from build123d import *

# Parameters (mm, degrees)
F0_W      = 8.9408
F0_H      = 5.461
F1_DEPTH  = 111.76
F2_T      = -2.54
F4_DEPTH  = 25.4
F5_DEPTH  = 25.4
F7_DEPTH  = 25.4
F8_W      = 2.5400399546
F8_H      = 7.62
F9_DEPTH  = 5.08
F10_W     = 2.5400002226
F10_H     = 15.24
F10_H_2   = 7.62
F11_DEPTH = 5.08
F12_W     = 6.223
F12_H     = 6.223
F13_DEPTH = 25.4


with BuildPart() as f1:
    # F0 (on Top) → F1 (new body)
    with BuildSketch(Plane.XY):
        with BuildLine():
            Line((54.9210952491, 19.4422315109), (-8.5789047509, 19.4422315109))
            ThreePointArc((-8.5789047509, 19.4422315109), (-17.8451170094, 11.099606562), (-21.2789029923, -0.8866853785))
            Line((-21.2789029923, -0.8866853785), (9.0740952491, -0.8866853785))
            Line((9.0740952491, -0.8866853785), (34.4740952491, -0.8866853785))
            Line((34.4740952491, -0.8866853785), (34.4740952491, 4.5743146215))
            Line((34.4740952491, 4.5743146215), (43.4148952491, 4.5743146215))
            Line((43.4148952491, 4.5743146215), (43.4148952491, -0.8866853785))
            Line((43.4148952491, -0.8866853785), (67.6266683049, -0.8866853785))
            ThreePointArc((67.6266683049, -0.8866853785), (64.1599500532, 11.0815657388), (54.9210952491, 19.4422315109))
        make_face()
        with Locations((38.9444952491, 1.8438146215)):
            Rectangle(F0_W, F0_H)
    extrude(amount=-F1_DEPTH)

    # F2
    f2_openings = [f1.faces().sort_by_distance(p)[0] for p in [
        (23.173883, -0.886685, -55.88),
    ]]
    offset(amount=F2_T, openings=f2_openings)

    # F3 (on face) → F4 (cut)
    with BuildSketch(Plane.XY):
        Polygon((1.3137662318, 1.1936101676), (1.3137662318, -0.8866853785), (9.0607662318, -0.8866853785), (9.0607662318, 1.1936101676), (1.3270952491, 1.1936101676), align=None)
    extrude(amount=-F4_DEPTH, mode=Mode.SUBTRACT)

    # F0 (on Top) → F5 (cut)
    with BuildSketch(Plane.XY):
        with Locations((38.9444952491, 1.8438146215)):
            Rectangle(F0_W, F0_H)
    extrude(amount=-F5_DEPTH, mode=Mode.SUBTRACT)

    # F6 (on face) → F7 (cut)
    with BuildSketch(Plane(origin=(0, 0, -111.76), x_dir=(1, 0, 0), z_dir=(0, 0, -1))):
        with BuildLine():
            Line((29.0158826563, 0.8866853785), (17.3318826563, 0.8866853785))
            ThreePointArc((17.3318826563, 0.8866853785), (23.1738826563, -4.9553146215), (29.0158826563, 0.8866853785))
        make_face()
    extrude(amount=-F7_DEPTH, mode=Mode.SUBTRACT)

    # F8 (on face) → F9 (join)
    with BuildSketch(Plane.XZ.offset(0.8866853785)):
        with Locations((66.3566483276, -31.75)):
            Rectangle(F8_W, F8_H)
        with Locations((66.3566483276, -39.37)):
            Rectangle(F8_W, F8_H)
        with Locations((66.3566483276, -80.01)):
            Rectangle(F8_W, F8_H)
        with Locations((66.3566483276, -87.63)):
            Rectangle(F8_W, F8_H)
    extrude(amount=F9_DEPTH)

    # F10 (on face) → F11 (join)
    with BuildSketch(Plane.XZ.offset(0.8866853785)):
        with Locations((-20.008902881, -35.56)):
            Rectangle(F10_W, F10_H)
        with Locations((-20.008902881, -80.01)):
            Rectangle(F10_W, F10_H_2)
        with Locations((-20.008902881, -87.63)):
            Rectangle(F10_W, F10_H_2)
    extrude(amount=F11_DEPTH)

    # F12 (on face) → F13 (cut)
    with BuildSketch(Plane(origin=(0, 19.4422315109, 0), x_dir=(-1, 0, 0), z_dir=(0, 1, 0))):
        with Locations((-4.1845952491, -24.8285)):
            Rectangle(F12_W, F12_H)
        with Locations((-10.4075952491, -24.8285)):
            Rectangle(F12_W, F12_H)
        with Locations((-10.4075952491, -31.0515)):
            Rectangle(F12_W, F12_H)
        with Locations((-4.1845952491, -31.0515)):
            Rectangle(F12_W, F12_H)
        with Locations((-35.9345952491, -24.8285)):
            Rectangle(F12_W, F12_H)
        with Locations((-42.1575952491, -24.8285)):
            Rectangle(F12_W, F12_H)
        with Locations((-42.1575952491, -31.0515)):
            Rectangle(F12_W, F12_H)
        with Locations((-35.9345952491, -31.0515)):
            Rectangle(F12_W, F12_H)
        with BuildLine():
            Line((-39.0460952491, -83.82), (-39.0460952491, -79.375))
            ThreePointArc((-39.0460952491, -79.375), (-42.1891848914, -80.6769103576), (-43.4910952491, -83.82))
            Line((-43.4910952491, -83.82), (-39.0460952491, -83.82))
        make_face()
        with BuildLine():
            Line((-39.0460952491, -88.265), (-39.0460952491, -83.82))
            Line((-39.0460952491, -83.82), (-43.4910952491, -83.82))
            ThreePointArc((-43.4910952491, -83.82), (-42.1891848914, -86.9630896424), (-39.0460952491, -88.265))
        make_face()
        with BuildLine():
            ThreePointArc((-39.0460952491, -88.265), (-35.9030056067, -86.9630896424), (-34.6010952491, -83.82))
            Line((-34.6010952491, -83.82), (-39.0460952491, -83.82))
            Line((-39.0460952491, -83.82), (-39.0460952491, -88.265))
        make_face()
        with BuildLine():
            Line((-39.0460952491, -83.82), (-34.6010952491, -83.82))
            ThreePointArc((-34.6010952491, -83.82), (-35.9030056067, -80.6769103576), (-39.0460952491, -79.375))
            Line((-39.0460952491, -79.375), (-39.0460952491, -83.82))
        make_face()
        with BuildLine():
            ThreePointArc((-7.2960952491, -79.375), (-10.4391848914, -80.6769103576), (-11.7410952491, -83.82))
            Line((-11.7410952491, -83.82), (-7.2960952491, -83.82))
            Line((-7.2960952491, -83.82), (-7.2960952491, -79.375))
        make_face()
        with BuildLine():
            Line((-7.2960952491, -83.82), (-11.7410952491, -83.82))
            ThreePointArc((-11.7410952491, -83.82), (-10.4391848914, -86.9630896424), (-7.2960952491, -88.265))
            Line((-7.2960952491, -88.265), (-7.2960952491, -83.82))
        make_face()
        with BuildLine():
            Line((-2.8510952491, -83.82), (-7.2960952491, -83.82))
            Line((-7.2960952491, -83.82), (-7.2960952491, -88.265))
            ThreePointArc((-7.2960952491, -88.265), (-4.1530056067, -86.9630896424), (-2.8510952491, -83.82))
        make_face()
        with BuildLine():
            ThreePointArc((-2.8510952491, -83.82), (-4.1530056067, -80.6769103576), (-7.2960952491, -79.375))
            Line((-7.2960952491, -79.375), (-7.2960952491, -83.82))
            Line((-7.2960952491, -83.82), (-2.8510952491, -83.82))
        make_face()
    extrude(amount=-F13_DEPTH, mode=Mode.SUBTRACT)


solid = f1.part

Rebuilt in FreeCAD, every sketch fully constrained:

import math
import FreeCAD as App
import Part
import Sketcher
Q = App.Units.Quantity


def faces_at(feature, points):
    """Names of the faces that lie closest to the given points."""
    faces = feature.Shape.Faces
    near = lambda p: min(range(len(faces)), key=lambda i: faces[i].distToShape(Part.Vertex(*p))[0])
    return sorted({f"Face{near(p) + 1}" for p in points})


def add_polygon(sketch, points):
    """Adds a closed chain of lines whose ends are joined by coincident constraints."""
    first, n = sketch.GeometryCount, len(points)
    for a, b in zip(points, points[1:] + points[:1]):
        sketch.addGeometry(Part.LineSegment(App.Vector(*a, 0), App.Vector(*b, 0)), False)
    for i in range(n):
        sketch.addConstraint(Sketcher.Constraint("Coincident", first + i, 2, first + (i + 1) % n, 1))

doc = App.newDocument("Part")
params = doc.addObject("Spreadsheet::Sheet", "Params")
for row, (alias, value) in enumerate([
    ("sketch1_radius", "0.89 in"),
    ("sketch1_width", "2.5 in"),
    ("sketch1_radius2", "0.898 in"),
    ("pad1_length", "4.4 in"),
    ("thickness_wall", "0.1 in"),
    ("sketch2_width", "0.305 in"),
    ("pocket1_length", "1 in"),
    ("sketch3_width", "0.352 in"),
    ("sketch3_height", "0.215 in"),
    ("pocket2_length", "1 in"),
    ("sketch4_radius", "0.23 in"),
    ("pocket3_length", "1 in"),
    ("sketch5_height", "0.6 in"),
    ("pad2_length", "0.2 in"),
    ("sketch6_width", "0.1 in"),
    ("sketch6_height", "0.6 in"),
    ("pad3_length", "0.2 in"),
    ("sketch7_radius", "0.175 in"),
    ("sketch7_width", "0.49 in"),
    ("pocket4_length", "1 in"),
], start=1):
    params.set(f"A{row}", alias)
    params.set(f"B{row}", "=" + value)
    params.setAlias(f"B{row}", alias)

body = doc.addObject("PartDesign::Body", "Body")

# Sketch on XY plane
sketch1 = doc.addObject("Sketcher::SketchObject", "Sketch")
body.addObject(sketch1)
sketch1.AttachmentSupport = (doc.XY_Plane, [""])
sketch1.MapMode = "FlatFace"
sketch1.addGeometry([
    Part.LineSegment(App.Vector(55, 19, 0), App.Vector(-9, 19, 0)),
    Part.ArcOfCircle(Part.Circle(App.Vector(1, -1, 0), App.Vector(0, 0, 1), 23), math.radians(116), math.radians(180)),
    Part.LineSegment(App.Vector(-21, -1, 0), App.Vector(68, -1, 0)),
    Part.ArcOfCircle(Part.Circle(App.Vector(45, -1, 0), App.Vector(0, 0, 1), 23), math.radians(0), math.radians(64)),
], False)
sketch1.addConstraint([
    Sketcher.Constraint("Coincident", 0, 2, 1, 1),
    Sketcher.Constraint("Coincident", 1, 2, 2, 1),
    Sketcher.Constraint("Coincident", 2, 2, 3, 1),
    Sketcher.Constraint("Coincident", 3, 2, 0, 1),
    Sketcher.Constraint("Horizontal", 0),
    Sketcher.Constraint("Horizontal", 2),
    Sketcher.Constraint("Radius", 1, Q("0.89 in")),
    Sketcher.Constraint("DistanceX", 0, 2, 0, 1, Q("2.5 in")),
    Sketcher.Constraint("Radius", 3, Q("0.898 in")),
    Sketcher.Constraint("DistanceX", 1, 2, 3, 2, Q("2.9999999 in")),
    Sketcher.Constraint("DistanceX", 2, 1, 2, 2, 88.905571),
    Sketcher.Constraint("DistanceY", 3, 3, 1, 2, 0.120601),
    Sketcher.Constraint("DistanceY", 1, 3, -1, 1, 0.877768),
    Sketcher.Constraint("DistanceX", -1, 1, 2, 2, 67.626668),
])
sketch1.setExpression("Constraints[6]", "Params.sketch1_radius")
sketch1.setExpression("Constraints[7]", "Params.sketch1_width")
sketch1.setExpression("Constraints[8]", "Params.sketch1_radius2")
pad1 = doc.addObject("PartDesign::Pad", "Pad")
body.addObject(pad1)
pad1.Profile = sketch1
pad1.setExpression("Length", "Params.pad1_length")
pad1.Reversed = True
doc.recompute()

thickness = doc.addObject("PartDesign::Thickness", "Thickness")
body.addObject(thickness)
thickness.Base = (pad1, faces_at(pad1, [(23.174, -0.887, -55.88)]))
thickness.setExpression("Value", "Params.thickness_wall")
thickness.Reversed = True
thickness.Join = "Arc"

# Sketch on XY plane
sketch2 = doc.addObject("Sketcher::SketchObject", "Sketch001")
body.addObject(sketch2)
sketch2.AttachmentSupport = (doc.XY_Plane, [""])
sketch2.MapMode = "FlatFace"
add_polygon(sketch2, [(1.3, 1.2), (1.3, -0.9), (9.1, -0.9), (9.1, 1.2)])  # lines 0-3
sketch2.addConstraint([
    Sketcher.Constraint("Vertical", 0),
    Sketcher.Constraint("Horizontal", 1),
    Sketcher.Constraint("Vertical", 2),
    Sketcher.Constraint("Horizontal", 3),
    Sketcher.Constraint("DistanceX", 1, 1, 1, 2, Q("0.305 in")),
    Sketcher.Constraint("DistanceY", 0, 2, 0, 1, 2.080296),
    Sketcher.Constraint("DistanceY", -1, 1, 2, 2, 1.19361),
    Sketcher.Constraint("DistanceX", -1, 1, 0, 2, 1.313766),
])
sketch2.setExpression("Constraints[8]", "Params.sketch2_width")
pocket1 = doc.addObject("PartDesign::Pocket", "Pocket")
body.addObject(pocket1)
pocket1.Profile = sketch2
pocket1.setExpression("Length", "Params.pocket1_length")

# Sketch on XY plane
sketch3 = doc.addObject("Sketcher::SketchObject", "Sketch002")
body.addObject(sketch3)
sketch3.AttachmentSupport = (doc.XY_Plane, [""])
sketch3.MapMode = "FlatFace"
add_polygon(sketch3, [(34, 5), (34, -1), (43, -1), (43, 5)])  # lines 0-3
sketch3.addConstraint([
    Sketcher.Constraint("Vertical", 0),
    Sketcher.Constraint("Horizontal", 1),
    Sketcher.Constraint("Vertical", 2),
    Sketcher.Constraint("Horizontal", 3),
    Sketcher.Constraint("DistanceX", 1, 1, 1, 2, Q("0.352 in")),
    Sketcher.Constraint("DistanceY", 0, 2, 0, 1, Q("0.215 in")),
    Sketcher.Constraint("DistanceX", -1, 1, 0, 2, 34.474095),
    Sketcher.Constraint("DistanceY", 0, 2, -1, 1, 0.886685),
])
sketch3.setExpression("Constraints[8]", "Params.sketch3_width")
sketch3.setExpression("Constraints[9]", "Params.sketch3_height")
pocket2 = doc.addObject("PartDesign::Pocket", "Pocket001")
body.addObject(pocket2)
pocket2.Profile = sketch3
pocket2.setExpression("Length", "Params.pocket2_length")

# Sketch on XY plane
sketch4 = doc.addObject("Sketcher::SketchObject", "Sketch003")
body.addObject(sketch4)
sketch4.AttachmentSupport = (doc.XY_Plane, [""])
sketch4.MapMode = "FlatFace"
sketch4.AttachmentOffset = App.Placement(App.Vector(0, 0, -4.4 * 25.4), App.Rotation())
sketch4.addGeometry([
    Part.LineSegment(App.Vector(29, -1, 0), App.Vector(17, -1, 0)),
    Part.ArcOfCircle(Part.Circle(App.Vector(23, -1, 0), App.Vector(0, 0, 1), 6), math.radians(0), math.radians(180)),
], False)
sketch4.addConstraint([
    Sketcher.Constraint("Coincident", 0, 1, 1, 1),
    Sketcher.Constraint("Coincident", 1, 2, 0, 2),
    Sketcher.Constraint("Horizontal", 0),
    Sketcher.Constraint("Horizontal", 1, 3, 0, 1),
    Sketcher.Constraint("Radius", 1, Q("0.23 in")),
    Sketcher.Constraint("DistanceX", -1, 1, 1, 3, 23.173883),
    Sketcher.Constraint("DistanceY", 1, 3, -1, 1, 0.886685),
])
sketch4.setExpression("Constraints[4]", "Params.sketch4_radius")
pocket3 = doc.addObject("PartDesign::Pocket", "Pocket002")
body.addObject(pocket3)
pocket3.Profile = sketch4
pocket3.setExpression("Length", "Params.pocket3_length")
pocket3.Reversed = True

# Sketch on XZ plane
sketch5 = doc.addObject("Sketcher::SketchObject", "Sketch004")
body.addObject(sketch5)
sketch5.AttachmentSupport = (doc.XZ_Plane, [""])
sketch5.MapMode = "FlatFace"
sketch5.AttachmentOffset = App.Placement(App.Vector(0, 0, 0.886685), App.Rotation())
add_polygon(sketch5, [(65.1, -27.9), (65.1, -43.2), (67.6, -43.2), (67.6, -27.9)])  # lines 0-3
add_polygon(sketch5, [(65.1, -76.2), (65.1, -91.4), (67.6, -91.4), (67.6, -76.2)])  # lines 4-7
sketch5.addConstraint([
    Sketcher.Constraint("Vertical", 0),
    Sketcher.Constraint("Horizontal", 1),
    Sketcher.Constraint("Vertical", 2),
    Sketcher.Constraint("Horizontal", 3),
    Sketcher.Constraint("Vertical", 4),
    Sketcher.Constraint("Horizontal", 5),
    Sketcher.Constraint("Vertical", 6),
    Sketcher.Constraint("Horizontal", 7),
    Sketcher.Constraint("Vertical", 3, 2, 4, 2),
    Sketcher.Constraint("Vertical", 2, 2, 5, 2),
    Sketcher.Constraint("Equal", 2, 4),
    Sketcher.Constraint("DistanceY", 0, 2, 0, 1, Q("0.6 in")),
    Sketcher.Constraint("DistanceY", 6, 2, -1, 1, Q("3 in")),
    Sketcher.Constraint("DistanceY", 0, 2, -1, 1, Q("1.7 in")),
    Sketcher.Constraint("DistanceX", 1, 1, 1, 2, 2.54004),
    Sketcher.Constraint("DistanceX", -1, 1, 0, 2, 65.086628),
])
sketch5.setExpression("Constraints[19]", "Params.sketch5_height")
pad2 = doc.addObject("PartDesign::Pad", "Pad001")
body.addObject(pad2)
pad2.Profile = sketch5
pad2.setExpression("Length", "Params.pad2_length")

# Sketch on XZ plane
sketch6 = doc.addObject("Sketcher::SketchObject", "Sketch005")
body.addObject(sketch6)
sketch6.AttachmentSupport = (doc.XZ_Plane, [""])
sketch6.MapMode = "FlatFace"
sketch6.AttachmentOffset = App.Placement(App.Vector(0, 0, 0.886685), App.Rotation())
add_polygon(sketch6, [(-21.3, -27.9), (-21.3, -43.2), (-18.7, -43.2), (-18.7, -27.9)])  # lines 0-3
add_polygon(sketch6, [(-21.3, -76.2), (-21.3, -91.4), (-18.7, -91.4), (-18.7, -76.2)])  # lines 4-7
sketch6.addConstraint([
    Sketcher.Constraint("Vertical", 0),
    Sketcher.Constraint("Horizontal", 1),
    Sketcher.Constraint("Vertical", 2),
    Sketcher.Constraint("Horizontal", 3),
    Sketcher.Constraint("Vertical", 4),
    Sketcher.Constraint("Horizontal", 5),
    Sketcher.Constraint("Vertical", 6),
    Sketcher.Constraint("Horizontal", 7),
    Sketcher.Constraint("Vertical", 3, 2, 4, 2),
    Sketcher.Constraint("Vertical", 2, 2, 5, 2),
    Sketcher.Constraint("Equal", 2, 4),
    Sketcher.Constraint("DistanceX", 1, 1, 1, 2, Q("0.1 in")),
    Sketcher.Constraint("DistanceY", 0, 2, 0, 1, Q("0.6 in")),
    Sketcher.Constraint("DistanceY", 6, 2, -1, 1, Q("3 in")),
    Sketcher.Constraint("DistanceY", 0, 2, -1, 1, Q("1.7 in")),
    Sketcher.Constraint("DistanceX", 0, 2, -1, 1, 21.278903),
])
sketch6.setExpression("Constraints[19]", "Params.sketch6_width")
sketch6.setExpression("Constraints[20]", "Params.sketch6_height")
pad3 = doc.addObject("PartDesign::Pad", "Pad002")
body.addObject(pad3)
pad3.Profile = sketch6
pad3.setExpression("Length", "Params.pad3_length")

# Sketch on XZ plane
sketch7 = doc.addObject("Sketcher::SketchObject", "Sketch006")
body.addObject(sketch7)
sketch7.AttachmentSupport = (doc.XZ_Plane, [""])
sketch7.MapMode = "FlatFace"
sketch7.AttachmentOffset = App.Placement(App.Vector(0, 0, -19.442232), App.Rotation())
add_polygon(sketch7, [(1.1, -21.7), (13.5, -21.7), (13.5, -34.2), (1.1, -34.2)])  # lines 0-3
add_polygon(sketch7, [(32.8, -21.7), (45.3, -21.7), (45.3, -34.2), (32.8, -34.2)])  # lines 4-7
sketch7.addGeometry(Part.ArcOfCircle(Part.Circle(App.Vector(39, -83.8, 0), App.Vector(0, 0, 1), 4.4), math.radians(0), math.radians(90)), False)  # 8
sketch7.addGeometry(Part.ArcOfCircle(Part.Circle(App.Vector(39, -83.8, 0), App.Vector(0, 0, 1), 4.4), math.radians(-90), math.radians(0)), False)  # 9
sketch7.addGeometry(Part.ArcOfCircle(Part.Circle(App.Vector(39, -83.8, 0), App.Vector(0, 0, 1), 4.4), math.radians(180), math.radians(270)), False)  # 10
sketch7.addGeometry(Part.ArcOfCircle(Part.Circle(App.Vector(39, -83.8, 0), App.Vector(0, 0, 1), 4.4), math.radians(90), math.radians(180)), False)  # 11
sketch7.addGeometry(Part.ArcOfCircle(Part.Circle(App.Vector(7.3, -83.8, 0), App.Vector(0, 0, 1), 4.4), math.radians(0), math.radians(90)), False)  # 12
sketch7.addGeometry(Part.ArcOfCircle(Part.Circle(App.Vector(7.3, -83.8, 0), App.Vector(0, 0, 1), 4.4), math.radians(-90), math.radians(0)), False)  # 13
sketch7.addGeometry(Part.ArcOfCircle(Part.Circle(App.Vector(7.3, -83.8, 0), App.Vector(0, 0, 1), 4.4), math.radians(180), math.radians(270)), False)  # 14
sketch7.addGeometry(Part.ArcOfCircle(Part.Circle(App.Vector(7.3, -83.8, 0), App.Vector(0, 0, 1), 4.4), math.radians(90), math.radians(180)), False)  # 15
sketch7.addConstraint([
    Sketcher.Constraint("Tangent", 8, 1, 9, 2),
    Sketcher.Constraint("Tangent", 9, 1, 10, 2),
    Sketcher.Constraint("Tangent", 10, 1, 11, 2),
    Sketcher.Constraint("Tangent", 11, 1, 8, 2),
    Sketcher.Constraint("Tangent", 12, 1, 13, 2),
    Sketcher.Constraint("Tangent", 13, 1, 14, 2),
    Sketcher.Constraint("Tangent", 14, 1, 15, 2),
    Sketcher.Constraint("Tangent", 15, 1, 12, 2),
    Sketcher.Constraint("Horizontal", 0),
    Sketcher.Constraint("Vertical", 1),
    Sketcher.Constraint("Horizontal", 2),
    Sketcher.Constraint("Vertical", 3),
    Sketcher.Constraint("Horizontal", 4),
    Sketcher.Constraint("Vertical", 5),
    Sketcher.Constraint("Horizontal", 6),
    Sketcher.Constraint("Vertical", 7),
    Sketcher.Constraint("Equal", 8, 9),
    Sketcher.Constraint("Equal", 11, 12),
    Sketcher.Constraint("Equal", 12, 13),
    Sketcher.Constraint("Horizontal", 11, 3, 12, 3),
    Sketcher.Constraint("Horizontal", 3, 2, 4, 2),
    Sketcher.Constraint("Horizontal", 2, 2, 5, 2),
    Sketcher.Constraint("Horizontal", 15, 3, 8, 1),
    Sketcher.Constraint("Horizontal", 8, 1, 10, 1),
    Sketcher.Constraint("Horizontal", 10, 1, 12, 1),
    Sketcher.Constraint("Horizontal", 12, 1, 14, 1),
    Sketcher.Constraint("Vertical", 11, 3, 9, 1),
    Sketcher.Constraint("Vertical", 9, 1, 11, 1),
    Sketcher.Constraint("Vertical", 15, 3, 13, 1),
    Sketcher.Constraint("Vertical", 13, 1, 15, 1),
    Sketcher.Constraint("Equal", 2, 4),
    Sketcher.Constraint("Equal", 6, 1),
    Sketcher.Constraint("Radius", 8, Q("0.175 in")),
    Sketcher.Constraint("DistanceX", 0, 1, 0, 2, Q("0.49 in")),
    Sketcher.Constraint("DistanceY", 8, 3, -1, 1, Q("3.3 in")),
    Sketcher.Constraint("DistanceX", 12, 1, 10, 1, Q("0.9 in")),
    Sketcher.Constraint("DistanceX", 0, 2, 4, 2, Q("1.25 in")),
    Sketcher.Constraint("DistanceY", 0, 2, -1, 1, Q("0.855 in")),
    Sketcher.Constraint("DistanceX", 12, 3, 0, 2, Q("0.245 in")),
    Sketcher.Constraint("DistanceX", -1, 1, 8, 3, 39.046095),
])
sketch7.setExpression("Constraints[40]", "Params.sketch7_radius")
sketch7.setExpression("Constraints[41]", "Params.sketch7_width")
pocket4 = doc.addObject("PartDesign::Pocket", "Pocket003")
body.addObject(pocket4)
pocket4.Profile = sketch7
pocket4.setExpression("Length", "Params.pocket4_length")
pocket4.Reversed = True

doc.recompute()
